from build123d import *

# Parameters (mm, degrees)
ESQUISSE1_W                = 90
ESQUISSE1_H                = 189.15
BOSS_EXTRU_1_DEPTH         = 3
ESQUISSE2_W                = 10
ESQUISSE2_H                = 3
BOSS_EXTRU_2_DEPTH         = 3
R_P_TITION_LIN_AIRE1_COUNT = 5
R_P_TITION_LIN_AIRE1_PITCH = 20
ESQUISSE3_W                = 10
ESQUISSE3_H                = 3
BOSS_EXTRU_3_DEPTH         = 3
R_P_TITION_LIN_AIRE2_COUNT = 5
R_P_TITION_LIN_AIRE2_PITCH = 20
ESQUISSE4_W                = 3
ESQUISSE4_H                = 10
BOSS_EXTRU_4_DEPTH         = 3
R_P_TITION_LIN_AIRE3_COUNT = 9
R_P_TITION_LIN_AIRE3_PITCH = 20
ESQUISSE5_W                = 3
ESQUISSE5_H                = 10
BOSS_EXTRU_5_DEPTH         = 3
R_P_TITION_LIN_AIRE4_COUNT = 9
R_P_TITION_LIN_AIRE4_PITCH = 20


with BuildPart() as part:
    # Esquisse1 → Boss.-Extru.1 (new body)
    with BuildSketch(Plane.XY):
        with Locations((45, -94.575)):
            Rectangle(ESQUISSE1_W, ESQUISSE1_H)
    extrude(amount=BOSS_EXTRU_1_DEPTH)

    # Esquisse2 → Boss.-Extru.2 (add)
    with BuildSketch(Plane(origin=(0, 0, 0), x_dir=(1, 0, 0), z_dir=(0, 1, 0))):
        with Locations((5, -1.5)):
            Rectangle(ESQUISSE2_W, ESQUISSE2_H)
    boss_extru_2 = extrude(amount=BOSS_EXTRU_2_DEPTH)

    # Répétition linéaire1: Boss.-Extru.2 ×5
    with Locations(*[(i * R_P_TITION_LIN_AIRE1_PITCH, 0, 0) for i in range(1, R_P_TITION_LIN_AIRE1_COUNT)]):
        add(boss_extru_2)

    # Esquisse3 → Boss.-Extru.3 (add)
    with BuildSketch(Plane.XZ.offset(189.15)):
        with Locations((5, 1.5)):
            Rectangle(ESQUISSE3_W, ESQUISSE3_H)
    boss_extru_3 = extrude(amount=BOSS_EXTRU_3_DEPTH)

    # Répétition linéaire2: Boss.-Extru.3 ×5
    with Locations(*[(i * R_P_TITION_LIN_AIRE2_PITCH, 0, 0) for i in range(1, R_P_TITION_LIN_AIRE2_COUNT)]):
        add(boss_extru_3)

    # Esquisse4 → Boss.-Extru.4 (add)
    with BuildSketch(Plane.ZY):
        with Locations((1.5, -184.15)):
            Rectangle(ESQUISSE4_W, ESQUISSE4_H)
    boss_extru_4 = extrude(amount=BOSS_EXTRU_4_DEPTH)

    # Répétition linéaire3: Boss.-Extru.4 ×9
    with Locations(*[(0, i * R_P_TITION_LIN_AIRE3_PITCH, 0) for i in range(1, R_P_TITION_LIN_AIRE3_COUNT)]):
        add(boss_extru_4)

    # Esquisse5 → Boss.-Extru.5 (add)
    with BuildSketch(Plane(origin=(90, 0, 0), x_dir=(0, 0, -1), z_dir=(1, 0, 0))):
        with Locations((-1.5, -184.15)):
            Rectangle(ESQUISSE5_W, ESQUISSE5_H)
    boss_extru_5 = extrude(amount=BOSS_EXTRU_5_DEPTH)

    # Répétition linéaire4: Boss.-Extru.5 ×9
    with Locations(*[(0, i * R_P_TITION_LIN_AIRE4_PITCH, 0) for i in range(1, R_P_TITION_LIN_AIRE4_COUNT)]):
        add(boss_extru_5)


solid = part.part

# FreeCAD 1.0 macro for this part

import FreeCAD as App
import Part
import Sketcher


def add_polygon(sketch, points):
    """Adds a closed chain of lines whose ends are joined by coincident constraints."""
    first, n = sketch.GeometryCount, len(points)
    for a, b in zip(points, points[1:] + points[:1]):
        sketch.addGeometry(Part.LineSegment(App.Vector(*a, 0), App.Vector(*b, 0)), False)
    for i in range(n):
        sketch.addConstraint(Sketcher.Constraint("Coincident", first + i, 2, first + (i + 1) % n, 1))

doc = App.newDocument("Part")
body = doc.addObject("PartDesign::Body", "Body")

# Sketch on XY plane
sketch1 = body.newObject("Sketcher::SketchObject", "Sketch")
sketch1.AttachmentSupport = (doc.getObject("XY_Plane"), [""])
sketch1.MapMode = "FlatFace"
add_polygon(sketch1, [(0, 0), (0, -189), (90, -189), (90, 0)])  # lines 0-3
sketch1.addConstraint([
    Sketcher.Constraint("Vertical", 0),
    Sketcher.Constraint("Horizontal", 1),
    Sketcher.Constraint("Vertical", 2),
    Sketcher.Constraint("Horizontal", 3),
    Sketcher.Constraint("Coincident", 3, 2, -1, 1),
    Sketcher.Constraint("DistanceX", 1, 1, 1, 2, 90.0),
    Sketcher.Constraint("DistanceY", 0, 2, 0, 1, 189.15),
])
pad1 = body.newObject("PartDesign::Pad", "Pad")
pad1.Profile = sketch1
pad1.Length = 3

# Sketch on XZ plane
sketch2 = body.newObject("Sketcher::SketchObject", "Sketch001")
sketch2.AttachmentSupport = (doc.getObject("XZ_Plane"), [""])
sketch2.MapMode = "FlatFace"
add_polygon(sketch2, [(0, 0), (0, 3), (10, 3), (10, 0)])  # lines 0-3
sketch2.addConstraint([
    Sketcher.Constraint("Vertical", 0),
    Sketcher.Constraint("Horizontal", 1),
    Sketcher.Constraint("Vertical", 2),
    Sketcher.Constraint("Horizontal", 3),
    Sketcher.Constraint("Coincident", 3, 2, -1, 1),
    Sketcher.Constraint("DistanceX", 1, 1, 1, 2, 10.0),
    Sketcher.Constraint("DistanceY", 0, 1, 0, 2, 3.0),
])
pad2 = body.newObject("PartDesign::Pad", "Pad001")
pad2.Profile = sketch2
pad2.Length = 3
pad2.Reversed = True
doc.recompute()

linearpattern = body.newObject("PartDesign::LinearPattern", "LinearPattern")
linearpattern.Originals = [pad2]
linearpattern.Direction = (doc.getObject("X_Axis"), [""])
linearpattern.Mode = "offset"
linearpattern.Offset = 20
linearpattern.Occurrences = 5
body.Tip = linearpattern

# Sketch on XZ plane
sketch3 = body.newObject("Sketcher::SketchObject", "Sketch002")
sketch3.AttachmentSupport = (doc.getObject("XZ_Plane"), [""])
sketch3.MapMode = "FlatFace"
sketch3.AttachmentOffset = App.Placement(App.Vector(0, 0, 189.15), App.Rotation())
add_polygon(sketch3, [(0, 3), (0, 0), (10, 0), (10, 3)])  # lines 0-3
sketch3.addConstraint([
    Sketcher.Constraint("Vertical", 0),
    Sketcher.Constraint("Horizontal", 1),
    Sketcher.Constraint("Vertical", 2),
    Sketcher.Constraint("Horizontal", 3),
    Sketcher.Constraint("Coincident", 0, 2, -1, 1),
    Sketcher.Constraint("DistanceX", 1, 1, 1, 2, 10.0),
    Sketcher.Constraint("DistanceY", 0, 2, 0, 1, 3.0),
])
pad3 = body.newObject("PartDesign::Pad", "Pad002")
pad3.Profile = sketch3
pad3.Length = 3
doc.recompute()

linearpattern2 = body.newObject("PartDesign::LinearPattern", "LinearPattern001")
linearpattern2.Originals = [pad3]
linearpattern2.Direction = (doc.getObject("X_Axis"), [""])
linearpattern2.Mode = "offset"
linearpattern2.Offset = 20
linearpattern2.Occurrences = 5
body.Tip = linearpattern2

# Sketch on YZ plane
sketch4 = body.newObject("Sketcher::SketchObject", "Sketch003")
sketch4.AttachmentSupport = (doc.getObject("YZ_Plane"), [""])
sketch4.MapMode = "FlatFace"
add_polygon(sketch4, [(-179.2, 0), (-189.2, 0), (-189.2, 3), (-179.2, 3)])  # lines 0-3
sketch4.addConstraint([
    Sketcher.Constraint("Horizontal", 0),
    Sketcher.Constraint("Vertical", 1),
    Sketcher.Constraint("Horizontal", 2),
    Sketcher.Constraint("Vertical", 3),
    Sketcher.Constraint("PointOnObject", 0, 2, -1),
    Sketcher.Constraint("DistanceX", 0, 2, 0, 1, 10.0),
    Sketcher.Constraint("DistanceY", 1, 1, 1, 2, 3.0),
    Sketcher.Constraint("DistanceX", 0, 2, -1, 1, 189.15),
])
pad4 = body.newObject("PartDesign::Pad", "Pad003")
pad4.Profile = sketch4
pad4.Length = 3
pad4.Reversed = True
doc.recompute()

linearpattern3 = body.newObject("PartDesign::LinearPattern", "LinearPattern002")
linearpattern3.Originals = [pad4]
linearpattern3.Direction = (doc.getObject("Y_Axis"), [""])
linearpattern3.Mode = "offset"
linearpattern3.Offset = 20
linearpattern3.Occurrences = 9
body.Tip = linearpattern3

# Sketch on YZ plane
sketch5 = body.newObject("Sketcher::SketchObject", "Sketch004")
sketch5.AttachmentSupport = (doc.getObject("YZ_Plane"), [""])
sketch5.MapMode = "FlatFace"
sketch5.AttachmentOffset = App.Placement(App.Vector(0, 0, 90), App.Rotation())
add_polygon(sketch5, [(-179.2, 3), (-189.2, 3), (-189.2, 0), (-179.2, 0)])  # lines 0-3
sketch5.addConstraint([
    Sketcher.Constraint("Horizontal", 0),
    Sketcher.Constraint("Vertical", 1),
    Sketcher.Constraint("Horizontal", 2),
    Sketcher.Constraint("Vertical", 3),
    Sketcher.Constraint("PointOnObject", 1, 2, -1),
    Sketcher.Constraint("DistanceX", 0, 2, 0, 1, 10.0),
    Sketcher.Constraint("DistanceY", 1, 2, 1, 1, 3.0),
    Sketcher.Constraint("DistanceX", 0, 2, -1, 1, 189.15),
])
pad5 = body.newObject("PartDesign::Pad", "Pad004")
pad5.Profile = sketch5
pad5.Length = 3
doc.recompute()

linearpattern4 = body.newObject("PartDesign::LinearPattern", "LinearPattern003")
linearpattern4.Originals = [pad5]
linearpattern4.Direction = (doc.getObject("Y_Axis"), [""])
linearpattern4.Mode = "offset"
linearpattern4.Offset = 20
linearpattern4.Occurrences = 9
body.Tip = linearpattern4

doc.recompute()
